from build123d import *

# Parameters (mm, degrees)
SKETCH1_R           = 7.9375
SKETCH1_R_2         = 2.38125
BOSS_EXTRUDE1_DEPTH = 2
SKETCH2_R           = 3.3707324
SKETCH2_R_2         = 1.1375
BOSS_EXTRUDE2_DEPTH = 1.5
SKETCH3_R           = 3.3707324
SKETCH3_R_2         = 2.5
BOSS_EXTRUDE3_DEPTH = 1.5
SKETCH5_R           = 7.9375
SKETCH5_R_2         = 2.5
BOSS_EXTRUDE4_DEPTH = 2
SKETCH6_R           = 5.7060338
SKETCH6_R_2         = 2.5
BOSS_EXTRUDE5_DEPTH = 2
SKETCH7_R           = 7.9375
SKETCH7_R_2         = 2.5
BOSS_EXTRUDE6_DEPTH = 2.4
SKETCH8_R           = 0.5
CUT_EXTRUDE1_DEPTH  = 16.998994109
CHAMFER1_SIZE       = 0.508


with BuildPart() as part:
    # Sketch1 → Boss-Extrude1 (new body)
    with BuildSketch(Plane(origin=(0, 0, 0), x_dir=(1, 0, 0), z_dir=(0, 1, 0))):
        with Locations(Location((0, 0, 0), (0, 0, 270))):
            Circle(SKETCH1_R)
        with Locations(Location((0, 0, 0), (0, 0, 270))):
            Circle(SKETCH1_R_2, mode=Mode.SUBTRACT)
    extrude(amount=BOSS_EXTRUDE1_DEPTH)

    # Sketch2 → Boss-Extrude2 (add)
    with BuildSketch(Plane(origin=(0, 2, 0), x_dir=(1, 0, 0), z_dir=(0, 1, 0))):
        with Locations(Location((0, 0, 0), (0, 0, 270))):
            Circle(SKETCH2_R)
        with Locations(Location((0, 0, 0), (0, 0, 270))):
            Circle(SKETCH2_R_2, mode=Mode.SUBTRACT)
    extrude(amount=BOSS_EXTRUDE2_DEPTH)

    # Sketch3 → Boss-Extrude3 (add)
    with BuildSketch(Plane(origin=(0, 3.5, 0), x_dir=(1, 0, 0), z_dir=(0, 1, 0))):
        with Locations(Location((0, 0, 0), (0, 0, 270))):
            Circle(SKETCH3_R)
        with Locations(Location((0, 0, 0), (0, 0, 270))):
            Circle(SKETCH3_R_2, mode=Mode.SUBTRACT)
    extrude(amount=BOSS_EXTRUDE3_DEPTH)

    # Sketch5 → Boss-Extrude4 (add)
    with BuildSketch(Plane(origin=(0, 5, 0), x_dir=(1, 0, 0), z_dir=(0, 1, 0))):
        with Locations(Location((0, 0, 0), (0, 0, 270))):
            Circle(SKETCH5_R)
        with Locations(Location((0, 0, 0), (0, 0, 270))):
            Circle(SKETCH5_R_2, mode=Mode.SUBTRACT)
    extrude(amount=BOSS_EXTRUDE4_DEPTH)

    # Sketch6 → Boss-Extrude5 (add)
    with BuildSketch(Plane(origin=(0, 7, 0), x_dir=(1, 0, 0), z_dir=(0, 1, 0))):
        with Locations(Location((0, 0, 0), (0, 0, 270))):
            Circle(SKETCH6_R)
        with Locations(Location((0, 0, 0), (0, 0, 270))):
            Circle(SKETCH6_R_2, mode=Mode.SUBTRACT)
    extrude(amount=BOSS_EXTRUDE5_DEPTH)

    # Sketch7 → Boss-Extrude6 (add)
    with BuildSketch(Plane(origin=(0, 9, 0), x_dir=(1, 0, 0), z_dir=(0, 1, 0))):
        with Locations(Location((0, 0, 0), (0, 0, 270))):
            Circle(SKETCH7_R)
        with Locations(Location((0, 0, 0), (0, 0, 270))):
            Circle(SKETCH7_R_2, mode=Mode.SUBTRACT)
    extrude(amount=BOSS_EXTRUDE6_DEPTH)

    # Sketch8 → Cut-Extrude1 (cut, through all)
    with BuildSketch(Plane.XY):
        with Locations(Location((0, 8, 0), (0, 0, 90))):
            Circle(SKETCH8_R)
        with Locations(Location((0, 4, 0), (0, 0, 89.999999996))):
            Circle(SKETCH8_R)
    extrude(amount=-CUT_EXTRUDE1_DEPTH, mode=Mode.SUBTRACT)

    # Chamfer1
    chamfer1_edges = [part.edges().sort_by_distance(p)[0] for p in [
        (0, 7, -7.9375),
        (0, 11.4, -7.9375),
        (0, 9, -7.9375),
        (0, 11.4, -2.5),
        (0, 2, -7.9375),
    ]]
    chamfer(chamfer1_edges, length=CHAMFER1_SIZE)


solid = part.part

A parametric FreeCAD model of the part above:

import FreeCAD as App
import Part
import Sketcher
from FreeCAD import Vector


def edges_at(feature, points):
    """Names of the edges that pass closest to the given points."""
    edges = feature.Shape.Edges
    near = lambda p: min(range(len(edges)), key=lambda i: edges[i].distToShape(Part.Vertex(*p))[0])
    return sorted({f"Edge{near(p) + 1}" for p in points})

doc = App.newDocument("Part")
params = doc.addObject("Spreadsheet::Sheet", "Params")
for row, (alias, value) in enumerate([
    ("pad1_length", "2 mm"),
    ("pad2_length", "1.5 mm"),
    ("sketch3_diameter", "5 mm"),
    ("pad3_length", "1.5 mm"),
    ("sketch4_diameter", "5 mm"),
    ("pad4_length", "2 mm"),
    ("sketch5_diameter", "5 mm"),
    ("pad5_length", "2 mm"),
    ("sketch6_diameter", "5 mm"),
    ("pad6_length", "2.4 mm"),
    ("sketch7_diameter", "1 mm"),
    ("chamfer_size", "0.508 mm"),
], start=1):
    params.set(f"A{row}", alias)
    params.set(f"B{row}", "=" + value)
    params.setAlias(f"B{row}", alias)

body = doc.addObject("PartDesign::Body", "Body")

# Sketch on XZ plane
sketch1 = body.newObject("Sketcher::SketchObject", "Sketch")
sketch1.AttachmentSupport = (doc.getObject("XZ_Plane"), [""])
sketch1.MapMode = "FlatFace"
sketch1.addGeometry(Part.Circle(Vector(0, 0, 0), Vector(0, 0, 1), 7.9), False)
sketch1.addGeometry(Part.Circle(Vector(0, 0, 0), Vector(0, 0, 1), 2.4), False)
sketch1.addConstraint(Sketcher.Constraint("Coincident", 0, 3, -1, 1))
sketch1.addConstraint(Sketcher.Constraint("Coincident", 1, 3, -1, 1))
sketch1.addConstraint(Sketcher.Constraint("Diameter", 0, 15.875))
sketch1.addConstraint(Sketcher.Constraint("Diameter", 1, 4.7625))
pad1 = body.newObject("PartDesign::Pad", "Pad")
pad1.Profile = sketch1
pad1.setExpression("Length", "Params.pad1_length")
pad1.Reversed = True

# Sketch on XZ plane
sketch2 = body.newObject("Sketcher::SketchObject", "Sketch001")
sketch2.AttachmentSupport = (doc.getObject("XZ_Plane"), [""])
sketch2.MapMode = "FlatFace"
sketch2.AttachmentOffset = App.Placement(Vector(0, 0, -2), App.Rotation())
sketch2.addGeometry(Part.Circle(Vector(0, 0, 0), Vector(0, 0, 1), 3.4), False)
sketch2.addGeometry(Part.Circle(Vector(0, 0, 0), Vector(0, 0, 1), 1.1), False)
sketch2.addConstraint(Sketcher.Constraint("Coincident", 0, 3, -1, 1))
sketch2.addConstraint(Sketcher.Constraint("Coincident", 1, 3, -1, 1))
sketch2.addConstraint(Sketcher.Constraint("Diameter", 1, 2.275))
sketch2.addConstraint(Sketcher.Constraint("Diameter", 0, 6.741465))
pad2 = body.newObject("PartDesign::Pad", "Pad001")
pad2.Profile = sketch2
pad2.setExpression("Length", "Params.pad2_length")
pad2.Reversed = True

# Sketch on XZ plane
sketch3 = body.newObject("Sketcher::SketchObject", "Sketch002")
sketch3.AttachmentSupport = (doc.getObject("XZ_Plane"), [""])
sketch3.MapMode = "FlatFace"
sketch3.AttachmentOffset = App.Placement(Vector(0, 0, -3.5), App.Rotation())
sketch3.addGeometry(Part.Circle(Vector(0, 0, 0), Vector(0, 0, 1), 3.4), False)
sketch3.addGeometry(Part.Circle(Vector(0, 0, 0), Vector(0, 0, 1), 2.5), False)
sketch3.addConstraint(Sketcher.Constraint("Coincident", 0, 3, -1, 1))
sketch3.addConstraint(Sketcher.Constraint("Coincident", 1, 3, -1, 1))
sketch3.addConstraint(Sketcher.Constraint("Diameter", 1, 5.0))
sketch3.addConstraint(Sketcher.Constraint("Diameter", 0, 6.741465))
sketch3.setExpression("Constraints[2]", "Params.sketch3_diameter")
pad3 = body.newObject("PartDesign::Pad", "Pad002")
pad3.Profile = sketch3
pad3.setExpression("Length", "Params.pad3_length")
pad3.Reversed = True

# Sketch on XZ plane
sketch4 = body.newObject("Sketcher::SketchObject", "Sketch003")
sketch4.AttachmentSupport = (doc.getObject("XZ_Plane"), [""])
sketch4.MapMode = "FlatFace"
sketch4.AttachmentOffset = App.Placement(Vector(0, 0, -5), App.Rotation())
sketch4.addGeometry(Part.Circle(Vector(0, 0, 0), Vector(0, 0, 1), 7.9), False)
sketch4.addGeometry(Part.Circle(Vector(0, 0, 0), Vector(0, 0, 1), 2.5), False)
sketch4.addConstraint(Sketcher.Constraint("Coincident", 0, 3, -1, 1))
sketch4.addConstraint(Sketcher.Constraint("Coincident", 1, 3, -1, 1))
sketch4.addConstraint(Sketcher.Constraint("Diameter", 1, 5.0))
sketch4.addConstraint(Sketcher.Constraint("Diameter", 0, 15.875))
sketch4.setExpression("Constraints[2]", "Params.sketch4_diameter")
pad4 = body.newObject("PartDesign::Pad", "Pad003")
pad4.Profile = sketch4
pad4.setExpression("Length", "Params.pad4_length")
pad4.Reversed = True

# Sketch on XZ plane
sketch5 = body.newObject("Sketcher::SketchObject", "Sketch004")
sketch5.AttachmentSupport = (doc.getObject("XZ_Plane"), [""])
sketch5.MapMode = "FlatFace"
sketch5.AttachmentOffset = App.Placement(Vector(0, 0, -7), App.Rotation())
sketch5.addGeometry(Part.Circle(Vector(0, 0, 0), Vector(0, 0, 1), 5.7), False)
sketch5.addGeometry(Part.Circle(Vector(0, 0, 0), Vector(0, 0, 1), 2.5), False)
sketch5.addConstraint(Sketcher.Constraint("Coincident", 0, 3, -1, 1))
sketch5.addConstraint(Sketcher.Constraint("Coincident", 1, 3, -1, 1))
sketch5.addConstraint(Sketcher.Constraint("Diameter", 1, 5.0))
sketch5.addConstraint(Sketcher.Constraint("Diameter", 0, 11.412068))
sketch5.setExpression("Constraints[2]", "Params.sketch5_diameter")
pad5 = body.newObject("PartDesign::Pad", "Pad004")
pad5.Profile = sketch5
pad5.setExpression("Length", "Params.pad5_length")
pad5.Reversed = True

# Sketch on XZ plane
sketch6 = body.newObject("Sketcher::SketchObject", "Sketch005")
sketch6.AttachmentSupport = (doc.getObject("XZ_Plane"), [""])
sketch6.MapMode = "FlatFace"
sketch6.AttachmentOffset = App.Placement(Vector(0, 0, -9), App.Rotation())
sketch6.addGeometry(Part.Circle(Vector(0, 0, 0), Vector(0, 0, 1), 7.9), False)
sketch6.addGeometry(Part.Circle(Vector(0, 0, 0), Vector(0, 0, 1), 2.5), False)
sketch6.addConstraint(Sketcher.Constraint("Coincident", 0, 3, -1, 1))
sketch6.addConstraint(Sketcher.Constraint("Coincident", 1, 3, -1, 1))
sketch6.addConstraint(Sketcher.Constraint("Diameter", 1, 5.0))
sketch6.addConstraint(Sketcher.Constraint("Diameter", 0, 15.875))
sketch6.setExpression("Constraints[2]", "Params.sketch6_diameter")
pad6 = body.newObject("PartDesign::Pad", "Pad005")
pad6.Profile = sketch6
pad6.setExpression("Length", "Params.pad6_length")
pad6.Reversed = True

# Sketch on XY plane
sketch7 = body.newObject("Sketcher::SketchObject", "Sketch006")
sketch7.AttachmentSupport = (doc.getObject("XY_Plane"), [""])
sketch7.MapMode = "FlatFace"
sketch7.addGeometry(Part.Circle(Vector(0, 8, 0), Vector(0, 0, 1), 0.5), False)
sketch7.addGeometry(Part.Circle(Vector(0, 4, 0), Vector(0, 0, 1), 0.5), False)
sketch7.addConstraint(Sketcher.Constraint("Equal", 0, 1))
sketch7.addConstraint(Sketcher.Constraint("PointOnObject", 0, 3, -2))
sketch7.addConstraint(Sketcher.Constraint("PointOnObject", 1, 3, -2))
sketch7.addConstraint(Sketcher.Constraint("Diameter", 0, 1.0))
sketch7.addConstraint(Sketcher.Constraint("DistanceY", -1, 1, 0, 3, 8.0))
sketch7.addConstraint(Sketcher.Constraint("DistanceY", -1, 1, 1, 3, 4.0))
sketch7.setExpression("Constraints[3]", "Params.sketch7_diameter")
pocket1 = body.newObject("PartDesign::Pocket", "Pocket")
pocket1.Profile = sketch7
pocket1.Type = "ThroughAll"
doc.recompute()

chamfer = body.newObject("PartDesign::Chamfer", "Chamfer")
chamfer.Base = (pocket1, edges_at(pocket1, [
    (0, 7, -7.938),
    (0, 11.4, -7.938),
    (0, 9, -7.938),
    (0, 11.4, -2.5),
    (0, 2, -7.938),
]))
chamfer.setExpression("Size", "Params.chamfer_size")

doc.recompute()
